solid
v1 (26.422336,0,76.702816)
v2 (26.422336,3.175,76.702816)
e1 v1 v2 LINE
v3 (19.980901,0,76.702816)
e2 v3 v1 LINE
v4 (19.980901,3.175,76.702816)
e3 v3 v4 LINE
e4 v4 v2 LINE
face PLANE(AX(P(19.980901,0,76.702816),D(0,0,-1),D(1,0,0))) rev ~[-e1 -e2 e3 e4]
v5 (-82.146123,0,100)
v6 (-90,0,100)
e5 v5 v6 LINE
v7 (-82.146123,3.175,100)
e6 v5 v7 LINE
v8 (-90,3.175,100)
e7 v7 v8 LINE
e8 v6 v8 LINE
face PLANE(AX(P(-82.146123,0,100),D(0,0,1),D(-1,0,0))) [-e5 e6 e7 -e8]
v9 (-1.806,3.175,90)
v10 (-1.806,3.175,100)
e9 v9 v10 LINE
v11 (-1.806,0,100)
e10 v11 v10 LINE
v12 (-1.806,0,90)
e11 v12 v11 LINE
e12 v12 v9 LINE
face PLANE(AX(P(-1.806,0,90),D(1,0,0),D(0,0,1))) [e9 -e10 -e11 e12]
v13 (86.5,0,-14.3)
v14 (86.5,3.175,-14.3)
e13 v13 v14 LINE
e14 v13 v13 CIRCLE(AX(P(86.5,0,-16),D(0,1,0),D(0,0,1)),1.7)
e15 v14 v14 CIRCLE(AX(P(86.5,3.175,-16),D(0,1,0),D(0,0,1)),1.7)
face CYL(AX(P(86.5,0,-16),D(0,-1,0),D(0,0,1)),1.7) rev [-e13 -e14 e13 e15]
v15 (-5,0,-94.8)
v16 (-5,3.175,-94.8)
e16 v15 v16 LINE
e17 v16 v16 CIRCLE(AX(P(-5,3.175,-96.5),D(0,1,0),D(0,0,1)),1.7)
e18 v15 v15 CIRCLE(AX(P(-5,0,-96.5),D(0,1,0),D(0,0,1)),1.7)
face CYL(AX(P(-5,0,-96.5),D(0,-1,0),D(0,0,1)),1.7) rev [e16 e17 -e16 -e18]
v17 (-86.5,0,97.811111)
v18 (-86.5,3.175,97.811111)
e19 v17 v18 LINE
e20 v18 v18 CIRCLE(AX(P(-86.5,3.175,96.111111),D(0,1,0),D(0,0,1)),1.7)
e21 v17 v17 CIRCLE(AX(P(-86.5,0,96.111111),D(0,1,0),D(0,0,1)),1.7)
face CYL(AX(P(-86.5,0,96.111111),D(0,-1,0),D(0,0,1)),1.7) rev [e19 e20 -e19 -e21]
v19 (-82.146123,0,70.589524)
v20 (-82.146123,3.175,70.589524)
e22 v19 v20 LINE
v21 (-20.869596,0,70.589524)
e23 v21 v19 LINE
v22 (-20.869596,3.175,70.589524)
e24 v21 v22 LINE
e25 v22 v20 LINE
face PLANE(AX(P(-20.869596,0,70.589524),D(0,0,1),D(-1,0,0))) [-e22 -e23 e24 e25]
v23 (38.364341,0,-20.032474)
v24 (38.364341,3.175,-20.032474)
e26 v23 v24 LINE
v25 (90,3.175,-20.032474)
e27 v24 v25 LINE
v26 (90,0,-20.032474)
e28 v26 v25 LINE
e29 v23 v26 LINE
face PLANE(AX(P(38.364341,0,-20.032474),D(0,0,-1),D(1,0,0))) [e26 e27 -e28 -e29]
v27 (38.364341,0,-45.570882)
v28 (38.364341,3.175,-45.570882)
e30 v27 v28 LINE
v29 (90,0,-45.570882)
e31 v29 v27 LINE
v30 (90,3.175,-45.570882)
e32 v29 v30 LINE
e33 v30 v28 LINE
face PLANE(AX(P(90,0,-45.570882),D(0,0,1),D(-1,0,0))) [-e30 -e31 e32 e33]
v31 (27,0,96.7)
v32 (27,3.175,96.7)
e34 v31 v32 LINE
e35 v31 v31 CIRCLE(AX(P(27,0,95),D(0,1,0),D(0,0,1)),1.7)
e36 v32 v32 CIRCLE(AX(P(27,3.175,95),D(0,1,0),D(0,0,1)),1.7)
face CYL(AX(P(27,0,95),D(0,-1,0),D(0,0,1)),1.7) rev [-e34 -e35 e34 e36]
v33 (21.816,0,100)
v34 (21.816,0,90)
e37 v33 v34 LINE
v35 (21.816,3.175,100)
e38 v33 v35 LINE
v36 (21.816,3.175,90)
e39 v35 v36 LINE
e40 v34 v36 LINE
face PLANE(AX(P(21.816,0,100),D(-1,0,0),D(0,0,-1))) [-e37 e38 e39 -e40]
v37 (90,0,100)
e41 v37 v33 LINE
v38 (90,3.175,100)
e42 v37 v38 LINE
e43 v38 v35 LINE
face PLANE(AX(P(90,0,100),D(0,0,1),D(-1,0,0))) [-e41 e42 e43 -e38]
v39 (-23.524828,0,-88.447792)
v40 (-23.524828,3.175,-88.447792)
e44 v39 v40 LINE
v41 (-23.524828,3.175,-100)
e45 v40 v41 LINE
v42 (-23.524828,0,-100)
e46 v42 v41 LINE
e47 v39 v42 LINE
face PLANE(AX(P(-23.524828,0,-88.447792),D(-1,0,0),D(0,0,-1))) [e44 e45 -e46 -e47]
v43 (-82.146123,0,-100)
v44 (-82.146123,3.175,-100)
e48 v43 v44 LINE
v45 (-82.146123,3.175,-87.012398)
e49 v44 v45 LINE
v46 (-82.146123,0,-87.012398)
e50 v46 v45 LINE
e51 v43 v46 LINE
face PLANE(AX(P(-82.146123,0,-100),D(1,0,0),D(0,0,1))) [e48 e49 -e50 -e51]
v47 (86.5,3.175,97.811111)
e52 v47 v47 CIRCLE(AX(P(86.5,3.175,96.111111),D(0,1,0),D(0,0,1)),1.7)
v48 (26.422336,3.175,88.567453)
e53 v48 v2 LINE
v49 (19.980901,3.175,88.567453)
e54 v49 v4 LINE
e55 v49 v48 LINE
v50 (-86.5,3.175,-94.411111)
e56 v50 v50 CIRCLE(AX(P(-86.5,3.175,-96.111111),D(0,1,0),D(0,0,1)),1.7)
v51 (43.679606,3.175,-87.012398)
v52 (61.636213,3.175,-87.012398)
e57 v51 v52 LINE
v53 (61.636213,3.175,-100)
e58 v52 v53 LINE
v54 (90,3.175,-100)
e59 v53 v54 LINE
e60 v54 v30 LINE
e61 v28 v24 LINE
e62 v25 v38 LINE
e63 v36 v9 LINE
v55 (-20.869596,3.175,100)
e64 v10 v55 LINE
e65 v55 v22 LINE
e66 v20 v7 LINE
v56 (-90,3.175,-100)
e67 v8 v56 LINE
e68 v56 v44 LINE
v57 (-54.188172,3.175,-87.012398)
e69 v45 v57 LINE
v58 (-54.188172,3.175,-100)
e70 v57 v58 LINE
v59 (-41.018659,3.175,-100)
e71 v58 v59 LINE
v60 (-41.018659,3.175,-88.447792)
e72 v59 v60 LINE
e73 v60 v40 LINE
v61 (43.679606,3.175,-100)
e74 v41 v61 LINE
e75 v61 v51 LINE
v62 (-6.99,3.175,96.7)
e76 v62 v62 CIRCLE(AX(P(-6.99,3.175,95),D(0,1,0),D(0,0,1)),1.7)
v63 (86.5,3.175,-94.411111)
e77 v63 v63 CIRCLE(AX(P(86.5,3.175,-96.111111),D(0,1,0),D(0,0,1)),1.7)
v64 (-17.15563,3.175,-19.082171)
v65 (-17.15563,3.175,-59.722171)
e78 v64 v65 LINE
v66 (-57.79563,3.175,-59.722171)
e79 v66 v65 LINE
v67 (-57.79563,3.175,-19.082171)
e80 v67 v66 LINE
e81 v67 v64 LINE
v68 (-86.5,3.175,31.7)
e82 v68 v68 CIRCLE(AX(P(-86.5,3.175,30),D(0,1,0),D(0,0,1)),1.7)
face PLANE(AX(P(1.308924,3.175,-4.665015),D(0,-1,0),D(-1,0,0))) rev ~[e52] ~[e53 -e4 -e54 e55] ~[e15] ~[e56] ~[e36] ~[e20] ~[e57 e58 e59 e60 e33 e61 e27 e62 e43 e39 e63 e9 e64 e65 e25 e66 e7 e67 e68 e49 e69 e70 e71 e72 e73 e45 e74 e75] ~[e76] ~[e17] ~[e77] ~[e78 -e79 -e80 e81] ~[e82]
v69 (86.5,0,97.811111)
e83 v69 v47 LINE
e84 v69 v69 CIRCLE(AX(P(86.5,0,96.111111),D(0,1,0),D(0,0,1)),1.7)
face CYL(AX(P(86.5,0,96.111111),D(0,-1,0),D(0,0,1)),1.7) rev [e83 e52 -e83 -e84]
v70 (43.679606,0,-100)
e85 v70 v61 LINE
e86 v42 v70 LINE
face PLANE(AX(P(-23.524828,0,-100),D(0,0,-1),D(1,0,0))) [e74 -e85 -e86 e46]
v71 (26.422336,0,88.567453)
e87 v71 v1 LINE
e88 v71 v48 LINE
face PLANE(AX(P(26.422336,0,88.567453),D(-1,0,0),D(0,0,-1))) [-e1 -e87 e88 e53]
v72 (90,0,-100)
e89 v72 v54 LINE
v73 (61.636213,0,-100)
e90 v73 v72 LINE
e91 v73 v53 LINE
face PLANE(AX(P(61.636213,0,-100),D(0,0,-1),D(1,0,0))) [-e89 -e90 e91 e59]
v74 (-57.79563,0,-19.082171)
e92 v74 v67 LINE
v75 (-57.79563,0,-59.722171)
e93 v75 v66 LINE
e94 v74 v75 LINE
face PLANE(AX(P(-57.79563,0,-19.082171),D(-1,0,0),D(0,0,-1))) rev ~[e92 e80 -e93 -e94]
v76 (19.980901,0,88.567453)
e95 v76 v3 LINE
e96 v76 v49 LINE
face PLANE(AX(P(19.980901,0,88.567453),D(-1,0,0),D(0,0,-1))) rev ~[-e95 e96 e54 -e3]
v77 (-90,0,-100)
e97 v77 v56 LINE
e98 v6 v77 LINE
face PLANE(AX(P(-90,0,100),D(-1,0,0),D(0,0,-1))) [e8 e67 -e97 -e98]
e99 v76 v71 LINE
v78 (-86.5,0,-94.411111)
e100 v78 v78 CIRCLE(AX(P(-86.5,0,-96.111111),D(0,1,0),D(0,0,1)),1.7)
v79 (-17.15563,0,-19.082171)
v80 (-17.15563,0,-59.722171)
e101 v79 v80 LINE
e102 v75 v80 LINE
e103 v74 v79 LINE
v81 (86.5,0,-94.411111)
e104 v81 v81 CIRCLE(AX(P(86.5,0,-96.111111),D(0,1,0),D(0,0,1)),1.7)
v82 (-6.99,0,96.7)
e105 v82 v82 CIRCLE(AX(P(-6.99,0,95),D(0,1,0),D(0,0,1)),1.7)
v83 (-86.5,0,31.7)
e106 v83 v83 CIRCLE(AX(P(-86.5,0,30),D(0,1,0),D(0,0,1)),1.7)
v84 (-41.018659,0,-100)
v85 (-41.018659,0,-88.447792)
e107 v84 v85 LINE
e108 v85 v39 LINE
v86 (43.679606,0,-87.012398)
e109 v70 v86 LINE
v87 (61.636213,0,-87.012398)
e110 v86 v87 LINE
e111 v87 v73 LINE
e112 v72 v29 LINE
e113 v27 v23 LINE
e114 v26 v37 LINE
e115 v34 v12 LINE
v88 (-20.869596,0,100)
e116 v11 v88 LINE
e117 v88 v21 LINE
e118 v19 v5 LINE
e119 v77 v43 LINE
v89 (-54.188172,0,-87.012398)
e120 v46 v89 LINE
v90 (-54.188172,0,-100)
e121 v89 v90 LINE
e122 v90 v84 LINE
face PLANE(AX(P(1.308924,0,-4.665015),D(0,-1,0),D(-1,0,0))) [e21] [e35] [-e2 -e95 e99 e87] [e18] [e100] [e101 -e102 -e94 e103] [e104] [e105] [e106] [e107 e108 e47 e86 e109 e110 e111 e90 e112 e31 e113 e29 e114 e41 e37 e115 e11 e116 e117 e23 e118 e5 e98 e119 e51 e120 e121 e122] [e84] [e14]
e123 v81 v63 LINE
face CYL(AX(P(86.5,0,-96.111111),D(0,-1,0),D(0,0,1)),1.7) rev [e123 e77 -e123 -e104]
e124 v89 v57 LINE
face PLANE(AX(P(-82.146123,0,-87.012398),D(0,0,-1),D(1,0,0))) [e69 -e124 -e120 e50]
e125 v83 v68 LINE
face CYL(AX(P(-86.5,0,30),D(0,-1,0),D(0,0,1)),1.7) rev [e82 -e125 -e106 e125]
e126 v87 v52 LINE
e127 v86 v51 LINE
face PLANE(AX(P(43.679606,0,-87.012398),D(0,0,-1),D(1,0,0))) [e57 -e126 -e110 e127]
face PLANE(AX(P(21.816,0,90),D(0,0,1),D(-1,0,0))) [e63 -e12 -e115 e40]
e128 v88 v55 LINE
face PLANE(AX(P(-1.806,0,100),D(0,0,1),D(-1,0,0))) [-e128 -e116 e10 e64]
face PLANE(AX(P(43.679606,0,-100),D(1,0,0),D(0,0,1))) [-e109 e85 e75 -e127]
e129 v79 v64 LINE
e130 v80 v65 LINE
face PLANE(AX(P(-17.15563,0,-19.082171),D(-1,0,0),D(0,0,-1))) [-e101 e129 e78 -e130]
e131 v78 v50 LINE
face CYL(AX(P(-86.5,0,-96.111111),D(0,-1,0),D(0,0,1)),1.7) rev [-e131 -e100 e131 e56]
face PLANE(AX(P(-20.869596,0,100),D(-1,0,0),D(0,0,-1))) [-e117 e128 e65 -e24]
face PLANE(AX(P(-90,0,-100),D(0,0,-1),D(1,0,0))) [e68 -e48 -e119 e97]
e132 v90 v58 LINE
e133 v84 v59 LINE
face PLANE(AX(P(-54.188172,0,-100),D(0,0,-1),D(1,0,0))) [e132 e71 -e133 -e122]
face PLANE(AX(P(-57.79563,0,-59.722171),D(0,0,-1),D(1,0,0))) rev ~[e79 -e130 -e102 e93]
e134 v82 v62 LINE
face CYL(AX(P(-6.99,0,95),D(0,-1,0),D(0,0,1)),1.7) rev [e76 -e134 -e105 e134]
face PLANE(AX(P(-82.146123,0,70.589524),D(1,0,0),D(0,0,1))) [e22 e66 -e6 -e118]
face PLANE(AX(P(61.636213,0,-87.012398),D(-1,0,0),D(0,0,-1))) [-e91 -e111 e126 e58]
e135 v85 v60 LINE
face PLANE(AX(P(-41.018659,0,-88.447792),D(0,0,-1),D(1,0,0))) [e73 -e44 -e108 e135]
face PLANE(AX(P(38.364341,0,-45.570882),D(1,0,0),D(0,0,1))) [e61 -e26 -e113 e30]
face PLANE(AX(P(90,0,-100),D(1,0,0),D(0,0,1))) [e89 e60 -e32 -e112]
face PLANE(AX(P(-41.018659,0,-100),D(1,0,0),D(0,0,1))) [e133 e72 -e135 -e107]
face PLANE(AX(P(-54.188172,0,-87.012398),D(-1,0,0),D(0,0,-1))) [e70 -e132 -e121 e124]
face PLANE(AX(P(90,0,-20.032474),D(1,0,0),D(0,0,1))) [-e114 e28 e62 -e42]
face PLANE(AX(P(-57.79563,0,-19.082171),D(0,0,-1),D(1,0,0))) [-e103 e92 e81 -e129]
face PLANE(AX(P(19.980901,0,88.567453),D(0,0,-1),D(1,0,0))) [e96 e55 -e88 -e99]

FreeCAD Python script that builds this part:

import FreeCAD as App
import Part
import Sketcher

V = App.Vector
Q = App.Units.Quantity


def add_polygon(sketch, points):
    """Adds a closed chain of lines whose ends are joined by coincident constraints."""
    first, n = sketch.GeometryCount, len(points)
    for a, b in zip(points, points[1:] + points[:1]):
        sketch.addGeometry(Part.LineSegment(App.Vector(*a, 0), App.Vector(*b, 0)), False)
    for i in range(n):
        sketch.addConstraint(Sketcher.Constraint("Coincident", first + i, 2, first + (i + 1) % n, 1))

doc = App.newDocument("Part")
body = doc.addObject("PartDesign::Body", "Body")

sketch1 = body.newObject("Sketcher::SketchObject", "Sketch")
sketch1.AttachmentSupport = (doc.getObject("XZ_Plane"), [""])
sketch1.MapMode = "FlatFace"
add_polygon(sketch1, [(-82.1, -100), (-90, -100), (-90, 100), (-82.1, 100), (-82.1, 70.6), (-20.9, 70.6), (-20.9, 100), (-1.8, 100), (-1.8, 90), (21.8, 90), (21.8, 100), (90, 100), (90, -20), (38.4, -20), (38.4, -45.6), (90, -45.6), (90, -100), (61.6, -100), (61.6, -87), (43.7, -87), (43.7, -100), (-23.5, -100), (-23.5, -88.4), (-41, -88.4), (-41, -100), (-54.2, -100), (-54.2, -87), (-82.1, -87)])
sketch1.addGeometry(Part.Circle(V(86.5, 96.1, 0), V(0, 0, 1), 1.7), False)
sketch1.addGeometry(Part.Circle(V(27, 95, 0), V(0, 0, 1), 1.7), False)
add_polygon(sketch1, [(20, 88.6), (20, 76.7), (26.4, 76.7), (26.4, 88.6)])
sketch1.addGeometry(Part.Circle(V(-7, 95, 0), V(0, 0, 1), 1.7), False)
sketch1.addGeometry(Part.Circle(V(-86.5, 96.1, 0), V(0, 0, 1), 1.7), False)
sketch1.addGeometry(Part.Circle(V(-86.5, 30, 0), V(0, 0, 1), 1.7), False)
sketch1.addGeometry(Part.Circle(V(86.5, -16, 0), V(0, 0, 1), 1.7), False)
sketch1.addGeometry(Part.Circle(V(86.5, -96.1, 0), V(0, 0, 1), 1.7), False)
add_polygon(sketch1, [(-57.8, -19.1), (-57.8, -59.7), (-17.2, -59.7), (-17.2, -19.1)])
sketch1.addGeometry(Part.Circle(V(-5, -96.5, 0), V(0, 0, 1), 1.7), False)
sketch1.addGeometry(Part.Circle(V(-86.5, -96.1, 0), V(0, 0, 1), 1.7), False)
sketch1.addConstraint([
    Sketcher.Constraint("Horizontal", 0),
    Sketcher.Constraint("Vertical", 1),
    Sketcher.Constraint("Horizontal", 2),
    Sketcher.Constraint("Vertical", 3),
    Sketcher.Constraint("Horizontal", 4),
    Sketcher.Constraint("Vertical", 5),
    Sketcher.Constraint("Horizontal", 6),
    Sketcher.Constraint("Vertical", 7),
    Sketcher.Constraint("Horizontal", 8),
    Sketcher.Constraint("Vertical", 9),
    Sketcher.Constraint("Horizontal", 10),
    Sketcher.Constraint("Vertical", 11),
    Sketcher.Constraint("Horizontal", 12),
    Sketcher.Constraint("Vertical", 13),
    Sketcher.Constraint("Horizontal", 14),
    Sketcher.Constraint("Vertical", 15),
    Sketcher.Constraint("Horizontal", 16),
    Sketcher.Constraint("Vertical", 17),
    Sketcher.Constraint("Horizontal", 18),
    Sketcher.Constraint("Vertical", 19),
    Sketcher.Constraint("Horizontal", 20),
    Sketcher.Constraint("Vertical", 21),
    Sketcher.Constraint("Horizontal", 22),
    Sketcher.Constraint("Vertical", 23),
    Sketcher.Constraint("Horizontal", 24),
    Sketcher.Constraint("Vertical", 25),
    Sketcher.Constraint("Horizontal", 26),
    Sketcher.Constraint("Vertical", 27),
    Sketcher.Constraint("Vertical", 30),
    Sketcher.Constraint("Horizontal", 31),
    Sketcher.Constraint("Vertical", 32),
    Sketcher.Constraint("Horizontal", 33),
    Sketcher.Constraint("Vertical", 39),
    Sketcher.Constraint("Horizontal", 40),
    Sketcher.Constraint("Vertical", 41),
    Sketcher.Constraint("Horizontal", 42),
    Sketcher.Constraint("Equal", 28, 29),
    Sketcher.Constraint("Equal", 29, 34),
    Sketcher.Constraint("Equal", 34, 35),
    Sketcher.Constraint("Equal", 35, 36),
    Sketcher.Constraint("Equal", 36, 37),
    Sketcher.Constraint("Equal", 37, 38),
    Sketcher.Constraint("Equal", 38, 43),
    Sketcher.Constraint("Equal", 43, 44),
    Sketcher.Constraint("Symmetric", 35, 3, 38, 3, -1, 1),
    Sketcher.Constraint("Symmetric", 28, 3, 44, 3, -1, 1),
    Sketcher.Constraint("Symmetric", 0, 2, 10, 2, -1, 1),
    Sketcher.Constraint("Symmetric", 1, 2, 15, 2, -1, 1),
    Sketcher.Constraint("Symmetric", 28, 3, 35, 3, -2),
    Sketcher.Constraint("Symmetric", 2, 2, 27, 2, -1),
    Sketcher.Constraint("Horizontal", 29, 3, 34, 3),
    Sketcher.Constraint("Horizontal", 2, 2, 5, 2),
    Sketcher.Constraint("Horizontal", 16, 2, 19, 2),
    Sketcher.Constraint("Horizontal", 20, 2, 23, 2),
    Sketcher.Constraint("Horizontal", 18, 2, 25, 2),
    Sketcher.Constraint("Vertical", 35, 3, 36, 3),
    Sketcher.Constraint("Vertical", 28, 3, 37, 3),
    Sketcher.Constraint("Equal", 42, 39),
    Sketcher.Constraint("Diameter", 28, Q("3.4 mm")),
    Sketcher.Constraint("DistanceY", 1, 1, 1, 2, Q("200 mm")),
    Sketcher.Constraint("DistanceY", 7, 2, 7, 1, Q("10 mm")),
    Sketcher.Constraint("DistanceX", -1, 1, 29, 3, Q("27 mm")),
    Sketcher.Constraint("DistanceY", -1, 1, 29, 3, Q("95 mm")),
    Sketcher.Constraint("DistanceY", -1, 1, 36, 3, Q("30 mm")),
    Sketcher.Constraint("DistanceY", 37, 3, -1, 1, Q("16 mm")),
    Sketcher.Constraint("DistanceX", 43, 3, -1, 1, Q("5 mm")),
    Sketcher.Constraint("DistanceX", 0, 2, -1, 1, Q("90 mm")),
    Sketcher.Constraint("DistanceX", 35, 3, 28, 3, Q("173 mm")),
    Sketcher.Constraint("DistanceX", 40, 1, 40, 2, Q("40.64 mm")),
    Sketcher.Constraint("DistanceY", 43, 3, -1, 1, Q("96.5 mm")),
    Sketcher.Constraint("DistanceX", 8, 1, 8, 2, Q("23.622 mm")),
    Sketcher.Constraint("DistanceX", 10, 1, 10, 2, Q("68.184 mm")),
    Sketcher.Constraint("DistanceX", 34, 3, -1, 1, Q("6.99 mm")),
    Sketcher.Constraint("DistanceX", 12, 2, 12, 1, Q("51.635659 mm")),
    Sketcher.Constraint("DistanceX", 22, 2, 22, 1, Q("17.493831 mm")),
    Sketcher.Constraint("DistanceX", 26, 2, 26, 1, Q("27.957952 mm")),
    Sketcher.Constraint("DistanceY", 15, 2, 15, 1, Q("54.429118 mm")),
    Sketcher.Constraint("DistanceY", 21, 1, 21, 2, Q("11.552208 mm")),
    Sketcher.Constraint("DistanceX", -1, 1, 30, 2, Q("19.980901 mm")),
    Sketcher.Constraint("DistanceX", 0, 2, 0, 1, Q("7.853877 mm")),
    Sketcher.Constraint("DistanceX", 4, 1, 4, 2, Q("61.276527 mm")),
    Sketcher.Constraint("DistanceX", 16, 2, 16, 1, Q("28.363787 mm")),
    Sketcher.Constraint("DistanceX", 18, 2, 18, 1, Q("17.956606 mm")),
    Sketcher.Constraint("DistanceX", 20, 2, 20, 1, Q("67.204434 mm")),
    Sketcher.Constraint("DistanceX", 31, 1, 31, 2, Q("6.441435 mm")),
    Sketcher.Constraint("DistanceY", 3, 2, 3, 1, Q("29.410476 mm")),
    Sketcher.Constraint("DistanceY", 11, 2, 11, 1, Q("120.032474 mm")),
    Sketcher.Constraint("DistanceY", 17, 1, 17, 2, Q("12.987602 mm")),
    Sketcher.Constraint("DistanceY", 30, 2, 30, 1, Q("11.864637 mm")),
    Sketcher.Constraint("DistanceY", -1, 1, 28, 3, Q("96.111111 mm")),
    Sketcher.Constraint("DistanceX", 39, 2, -1, 1, Q("57.79563 mm")),
    Sketcher.Constraint("DistanceY", 39, 2, -1, 1, Q("59.722171 mm")),
    Sketcher.Constraint("DistanceY", -1, 1, 30, 2, Q("76.702816 mm")),
])
pad1 = body.newObject("PartDesign::Pad", "Pad")
pad1.Profile = sketch1
pad1.Length = 3.175
pad1.Reversed = True

doc.recompute()
